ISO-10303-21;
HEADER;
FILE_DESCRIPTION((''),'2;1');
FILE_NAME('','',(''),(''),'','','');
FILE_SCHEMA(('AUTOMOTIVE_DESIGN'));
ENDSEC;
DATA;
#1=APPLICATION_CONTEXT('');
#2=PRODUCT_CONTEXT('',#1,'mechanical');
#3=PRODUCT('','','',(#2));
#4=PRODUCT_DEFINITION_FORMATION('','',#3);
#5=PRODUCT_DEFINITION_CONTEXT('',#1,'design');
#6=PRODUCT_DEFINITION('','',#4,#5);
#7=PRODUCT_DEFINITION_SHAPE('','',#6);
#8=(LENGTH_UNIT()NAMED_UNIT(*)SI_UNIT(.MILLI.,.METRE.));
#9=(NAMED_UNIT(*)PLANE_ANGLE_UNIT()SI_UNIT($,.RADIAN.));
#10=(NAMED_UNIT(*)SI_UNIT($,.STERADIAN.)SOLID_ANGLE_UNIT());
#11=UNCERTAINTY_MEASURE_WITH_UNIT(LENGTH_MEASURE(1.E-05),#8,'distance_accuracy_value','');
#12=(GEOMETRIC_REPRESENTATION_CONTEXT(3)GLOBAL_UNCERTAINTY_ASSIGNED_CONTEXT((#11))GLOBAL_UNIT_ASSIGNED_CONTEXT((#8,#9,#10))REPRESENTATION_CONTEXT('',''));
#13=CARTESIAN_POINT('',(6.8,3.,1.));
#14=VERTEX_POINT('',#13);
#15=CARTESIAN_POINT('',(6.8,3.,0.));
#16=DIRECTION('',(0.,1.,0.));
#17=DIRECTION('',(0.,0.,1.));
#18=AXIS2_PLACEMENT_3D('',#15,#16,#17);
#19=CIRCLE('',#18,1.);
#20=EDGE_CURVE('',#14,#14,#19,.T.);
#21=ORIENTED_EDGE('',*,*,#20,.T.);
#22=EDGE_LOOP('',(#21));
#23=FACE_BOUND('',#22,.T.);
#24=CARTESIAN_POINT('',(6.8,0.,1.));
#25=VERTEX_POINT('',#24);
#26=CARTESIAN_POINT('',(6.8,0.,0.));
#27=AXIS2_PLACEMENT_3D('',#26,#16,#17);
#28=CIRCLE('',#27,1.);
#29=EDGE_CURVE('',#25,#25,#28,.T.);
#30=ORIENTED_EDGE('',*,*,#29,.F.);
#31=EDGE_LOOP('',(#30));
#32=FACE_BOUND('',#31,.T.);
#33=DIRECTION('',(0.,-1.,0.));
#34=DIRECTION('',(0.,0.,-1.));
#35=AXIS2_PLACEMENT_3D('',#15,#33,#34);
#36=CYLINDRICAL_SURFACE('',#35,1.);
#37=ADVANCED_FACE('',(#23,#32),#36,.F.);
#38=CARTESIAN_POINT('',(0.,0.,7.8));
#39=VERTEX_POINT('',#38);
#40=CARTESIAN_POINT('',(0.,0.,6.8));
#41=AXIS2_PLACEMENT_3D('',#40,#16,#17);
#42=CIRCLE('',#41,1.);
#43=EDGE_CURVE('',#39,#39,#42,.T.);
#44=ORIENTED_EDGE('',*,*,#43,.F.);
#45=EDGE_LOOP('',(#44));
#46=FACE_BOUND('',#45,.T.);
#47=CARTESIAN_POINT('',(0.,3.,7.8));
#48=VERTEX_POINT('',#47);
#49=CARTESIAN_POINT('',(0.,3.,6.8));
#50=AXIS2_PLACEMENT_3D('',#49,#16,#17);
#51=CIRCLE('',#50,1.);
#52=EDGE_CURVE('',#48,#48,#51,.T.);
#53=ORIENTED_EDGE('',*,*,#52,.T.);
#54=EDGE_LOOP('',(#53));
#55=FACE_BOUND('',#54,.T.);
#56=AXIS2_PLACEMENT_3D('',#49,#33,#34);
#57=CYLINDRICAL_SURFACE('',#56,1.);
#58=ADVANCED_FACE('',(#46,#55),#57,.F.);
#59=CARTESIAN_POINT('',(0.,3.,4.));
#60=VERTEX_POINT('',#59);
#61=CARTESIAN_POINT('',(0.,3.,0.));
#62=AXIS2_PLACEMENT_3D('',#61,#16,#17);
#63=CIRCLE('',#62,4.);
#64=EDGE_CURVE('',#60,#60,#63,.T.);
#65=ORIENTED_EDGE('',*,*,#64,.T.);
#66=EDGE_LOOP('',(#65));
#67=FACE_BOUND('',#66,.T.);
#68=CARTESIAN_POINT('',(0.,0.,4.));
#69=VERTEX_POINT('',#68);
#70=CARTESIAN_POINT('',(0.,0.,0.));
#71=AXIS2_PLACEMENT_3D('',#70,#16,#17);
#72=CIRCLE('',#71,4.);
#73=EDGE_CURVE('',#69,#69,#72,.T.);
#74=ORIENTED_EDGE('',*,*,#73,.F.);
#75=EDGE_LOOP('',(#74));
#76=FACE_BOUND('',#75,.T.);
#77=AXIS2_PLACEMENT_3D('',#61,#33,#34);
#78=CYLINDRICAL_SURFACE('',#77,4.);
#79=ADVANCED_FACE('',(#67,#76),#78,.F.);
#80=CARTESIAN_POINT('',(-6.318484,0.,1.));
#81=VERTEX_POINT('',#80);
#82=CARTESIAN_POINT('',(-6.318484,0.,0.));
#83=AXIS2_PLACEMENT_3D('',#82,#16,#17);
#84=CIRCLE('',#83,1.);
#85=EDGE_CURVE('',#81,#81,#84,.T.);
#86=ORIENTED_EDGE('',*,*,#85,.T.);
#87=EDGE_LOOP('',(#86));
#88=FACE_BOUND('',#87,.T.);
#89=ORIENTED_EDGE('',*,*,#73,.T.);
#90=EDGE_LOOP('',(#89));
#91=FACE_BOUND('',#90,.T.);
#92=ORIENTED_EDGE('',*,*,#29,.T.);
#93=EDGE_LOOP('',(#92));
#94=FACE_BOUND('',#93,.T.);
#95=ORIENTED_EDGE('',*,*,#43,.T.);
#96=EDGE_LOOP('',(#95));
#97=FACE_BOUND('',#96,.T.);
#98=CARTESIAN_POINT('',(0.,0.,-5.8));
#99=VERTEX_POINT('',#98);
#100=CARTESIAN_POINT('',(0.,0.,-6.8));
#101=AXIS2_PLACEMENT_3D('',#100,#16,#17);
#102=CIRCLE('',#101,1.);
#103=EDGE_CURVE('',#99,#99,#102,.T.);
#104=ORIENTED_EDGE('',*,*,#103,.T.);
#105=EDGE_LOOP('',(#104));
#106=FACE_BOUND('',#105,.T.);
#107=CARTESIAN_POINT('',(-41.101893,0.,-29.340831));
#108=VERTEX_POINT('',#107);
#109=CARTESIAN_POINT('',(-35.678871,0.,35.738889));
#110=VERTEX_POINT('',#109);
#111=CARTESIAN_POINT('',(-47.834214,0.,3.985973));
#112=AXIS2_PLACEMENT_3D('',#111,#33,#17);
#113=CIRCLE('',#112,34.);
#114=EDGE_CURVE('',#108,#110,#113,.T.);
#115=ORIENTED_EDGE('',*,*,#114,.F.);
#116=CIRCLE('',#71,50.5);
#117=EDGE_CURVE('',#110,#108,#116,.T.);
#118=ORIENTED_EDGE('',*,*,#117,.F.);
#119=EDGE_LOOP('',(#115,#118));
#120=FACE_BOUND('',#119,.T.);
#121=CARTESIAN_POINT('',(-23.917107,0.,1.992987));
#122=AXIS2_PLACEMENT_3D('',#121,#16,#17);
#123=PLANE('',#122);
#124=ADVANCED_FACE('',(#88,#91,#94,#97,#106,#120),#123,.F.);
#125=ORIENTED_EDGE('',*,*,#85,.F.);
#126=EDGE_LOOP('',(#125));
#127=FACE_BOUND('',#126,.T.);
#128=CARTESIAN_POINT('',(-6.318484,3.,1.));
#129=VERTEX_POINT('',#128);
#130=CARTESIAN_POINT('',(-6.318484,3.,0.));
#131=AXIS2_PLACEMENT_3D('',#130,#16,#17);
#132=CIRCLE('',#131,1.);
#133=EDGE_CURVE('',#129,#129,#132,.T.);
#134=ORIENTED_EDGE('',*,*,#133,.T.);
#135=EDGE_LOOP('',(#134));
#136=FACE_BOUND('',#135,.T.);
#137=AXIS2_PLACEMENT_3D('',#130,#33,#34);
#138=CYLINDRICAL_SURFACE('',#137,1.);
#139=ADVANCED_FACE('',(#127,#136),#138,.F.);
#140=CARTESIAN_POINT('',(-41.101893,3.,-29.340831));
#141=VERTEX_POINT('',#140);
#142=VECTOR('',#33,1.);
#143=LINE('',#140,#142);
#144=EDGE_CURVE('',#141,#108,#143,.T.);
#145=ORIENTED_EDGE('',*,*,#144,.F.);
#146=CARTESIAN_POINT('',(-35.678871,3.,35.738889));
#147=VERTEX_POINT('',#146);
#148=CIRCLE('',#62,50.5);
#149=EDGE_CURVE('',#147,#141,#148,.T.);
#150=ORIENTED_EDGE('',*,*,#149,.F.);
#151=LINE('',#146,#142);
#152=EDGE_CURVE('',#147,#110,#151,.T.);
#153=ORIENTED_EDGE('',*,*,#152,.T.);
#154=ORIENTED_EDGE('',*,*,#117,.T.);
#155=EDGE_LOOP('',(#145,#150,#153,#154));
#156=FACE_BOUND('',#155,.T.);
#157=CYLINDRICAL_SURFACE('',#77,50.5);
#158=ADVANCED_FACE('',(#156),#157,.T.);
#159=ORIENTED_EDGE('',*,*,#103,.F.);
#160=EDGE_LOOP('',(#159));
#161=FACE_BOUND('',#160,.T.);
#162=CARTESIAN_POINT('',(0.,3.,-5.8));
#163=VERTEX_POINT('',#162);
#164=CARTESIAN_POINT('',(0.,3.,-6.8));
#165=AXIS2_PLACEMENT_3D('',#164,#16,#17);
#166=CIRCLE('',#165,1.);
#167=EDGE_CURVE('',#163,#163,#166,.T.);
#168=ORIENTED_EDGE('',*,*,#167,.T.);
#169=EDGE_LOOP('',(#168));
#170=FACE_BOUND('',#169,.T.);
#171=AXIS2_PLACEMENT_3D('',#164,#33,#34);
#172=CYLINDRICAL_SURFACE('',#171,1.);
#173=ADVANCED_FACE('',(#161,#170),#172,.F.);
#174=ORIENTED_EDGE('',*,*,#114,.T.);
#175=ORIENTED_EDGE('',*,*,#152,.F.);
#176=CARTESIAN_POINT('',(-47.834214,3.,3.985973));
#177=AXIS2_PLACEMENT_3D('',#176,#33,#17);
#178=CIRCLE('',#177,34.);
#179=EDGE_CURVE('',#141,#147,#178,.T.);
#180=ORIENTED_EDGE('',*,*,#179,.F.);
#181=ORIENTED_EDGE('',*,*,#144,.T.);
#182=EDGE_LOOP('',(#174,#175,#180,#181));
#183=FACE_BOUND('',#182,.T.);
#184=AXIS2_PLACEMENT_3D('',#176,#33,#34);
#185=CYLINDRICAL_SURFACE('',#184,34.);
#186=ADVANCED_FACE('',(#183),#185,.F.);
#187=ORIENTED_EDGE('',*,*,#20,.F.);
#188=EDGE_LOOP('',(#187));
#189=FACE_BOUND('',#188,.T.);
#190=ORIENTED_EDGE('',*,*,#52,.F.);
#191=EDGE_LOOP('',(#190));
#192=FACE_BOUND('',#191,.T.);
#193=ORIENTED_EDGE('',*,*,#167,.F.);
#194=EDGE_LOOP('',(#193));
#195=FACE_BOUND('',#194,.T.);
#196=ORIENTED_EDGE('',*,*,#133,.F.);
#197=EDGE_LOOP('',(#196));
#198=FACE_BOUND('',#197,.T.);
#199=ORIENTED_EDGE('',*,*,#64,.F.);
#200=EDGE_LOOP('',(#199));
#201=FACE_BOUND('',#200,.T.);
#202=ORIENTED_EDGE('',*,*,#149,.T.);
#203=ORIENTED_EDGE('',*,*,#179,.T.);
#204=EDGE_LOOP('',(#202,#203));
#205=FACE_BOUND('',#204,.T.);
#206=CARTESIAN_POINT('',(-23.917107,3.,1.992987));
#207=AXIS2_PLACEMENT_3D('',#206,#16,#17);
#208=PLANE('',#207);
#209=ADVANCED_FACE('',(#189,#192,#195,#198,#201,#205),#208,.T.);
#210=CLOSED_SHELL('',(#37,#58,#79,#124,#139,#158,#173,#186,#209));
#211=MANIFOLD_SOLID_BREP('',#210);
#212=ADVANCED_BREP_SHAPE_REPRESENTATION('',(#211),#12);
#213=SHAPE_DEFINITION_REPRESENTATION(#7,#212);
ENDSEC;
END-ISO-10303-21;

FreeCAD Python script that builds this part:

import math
import FreeCAD as App
import Part
import Sketcher
from FreeCAD import Vector

doc = App.newDocument("Part")
body = doc.addObject("PartDesign::Body", "Body")

# Sketch on XZ plane
sketch1 = body.newObject("Sketcher::SketchObject", "Sketch")
sketch1.AttachmentSupport = (doc.getObject("XZ_Plane"), [""])
sketch1.MapMode = "FlatFace"
sketch1.addGeometry([
    Part.ArcOfCircle(Part.Circle(Vector(0, 0, 0), Vector(0, 0, 1), 50.5), math.radians(-144.478631), math.radians(134.95185)),  # 0
    Part.ArcOfCircle(Part.Circle(Vector(-47.834214, 3.985973, 0), Vector(0, 0, 1), 34), math.radians(-78.57942), math.radians(69.05264)),  # 1
    Part.Circle(Vector(0, 6.8, 0), Vector(0, 0, 1), 1),  # 2
    Part.Circle(Vector(-6.318484, 0, 0), Vector(0, 0, 1), 1),  # 3
    Part.Circle(Vector(0, 0, 0), Vector(0, 0, 1), 4),  # 4
    Part.Circle(Vector(0, -6.8, 0), Vector(0, 0, 1), 1),  # 5
    Part.Circle(Vector(6.8, 0, 0), Vector(0, 0, 1), 1),  # 6
], False)
sketch1.addConstraint([
    Sketcher.Constraint("Coincident", 0, 1, 1, 1),
    Sketcher.Constraint("Coincident", 1, 2, 0, 2),
    Sketcher.Constraint("Coincident", 0, 3, -1, 1),
    Sketcher.Constraint("Coincident", 4, 3, -1, 1),
    Sketcher.Constraint("Equal", 2, 3),
    Sketcher.Constraint("Equal", 3, 5),
    Sketcher.Constraint("Equal", 5, 6),
    Sketcher.Constraint("Symmetric", 2, 3, 5, 3, -1, 1),
    Sketcher.Constraint("PointOnObject", 2, 3, -2),
    Sketcher.Constraint("PointOnObject", 3, 3, -1),
    Sketcher.Constraint("PointOnObject", 6, 3, -1),
    Sketcher.Constraint("Diameter", 2, 2.0),
    Sketcher.Constraint("Diameter", 4, 8.0),
    Sketcher.Constraint("Radius", 1, 34.0),
    Sketcher.Constraint("Radius", 0, 50.5),
    Sketcher.Constraint("DistanceY", -1, 1, 2, 3, 6.8),
    Sketcher.Constraint("DistanceX", -1, 1, 6, 3, 6.8),
    Sketcher.Constraint("DistanceY", 0, 1, -1, 1, 29.340831),
    Sketcher.Constraint("DistanceX", 1, 2, -1, 1, 35.678871),
    Sketcher.Constraint("DistanceX", 1, 3, 3, 3, 41.51573),
])
pad1 = body.newObject("PartDesign::Pad", "Pad")
pad1.Profile = sketch1
pad1.Length = 3
pad1.Reversed = True

doc.recompute()
